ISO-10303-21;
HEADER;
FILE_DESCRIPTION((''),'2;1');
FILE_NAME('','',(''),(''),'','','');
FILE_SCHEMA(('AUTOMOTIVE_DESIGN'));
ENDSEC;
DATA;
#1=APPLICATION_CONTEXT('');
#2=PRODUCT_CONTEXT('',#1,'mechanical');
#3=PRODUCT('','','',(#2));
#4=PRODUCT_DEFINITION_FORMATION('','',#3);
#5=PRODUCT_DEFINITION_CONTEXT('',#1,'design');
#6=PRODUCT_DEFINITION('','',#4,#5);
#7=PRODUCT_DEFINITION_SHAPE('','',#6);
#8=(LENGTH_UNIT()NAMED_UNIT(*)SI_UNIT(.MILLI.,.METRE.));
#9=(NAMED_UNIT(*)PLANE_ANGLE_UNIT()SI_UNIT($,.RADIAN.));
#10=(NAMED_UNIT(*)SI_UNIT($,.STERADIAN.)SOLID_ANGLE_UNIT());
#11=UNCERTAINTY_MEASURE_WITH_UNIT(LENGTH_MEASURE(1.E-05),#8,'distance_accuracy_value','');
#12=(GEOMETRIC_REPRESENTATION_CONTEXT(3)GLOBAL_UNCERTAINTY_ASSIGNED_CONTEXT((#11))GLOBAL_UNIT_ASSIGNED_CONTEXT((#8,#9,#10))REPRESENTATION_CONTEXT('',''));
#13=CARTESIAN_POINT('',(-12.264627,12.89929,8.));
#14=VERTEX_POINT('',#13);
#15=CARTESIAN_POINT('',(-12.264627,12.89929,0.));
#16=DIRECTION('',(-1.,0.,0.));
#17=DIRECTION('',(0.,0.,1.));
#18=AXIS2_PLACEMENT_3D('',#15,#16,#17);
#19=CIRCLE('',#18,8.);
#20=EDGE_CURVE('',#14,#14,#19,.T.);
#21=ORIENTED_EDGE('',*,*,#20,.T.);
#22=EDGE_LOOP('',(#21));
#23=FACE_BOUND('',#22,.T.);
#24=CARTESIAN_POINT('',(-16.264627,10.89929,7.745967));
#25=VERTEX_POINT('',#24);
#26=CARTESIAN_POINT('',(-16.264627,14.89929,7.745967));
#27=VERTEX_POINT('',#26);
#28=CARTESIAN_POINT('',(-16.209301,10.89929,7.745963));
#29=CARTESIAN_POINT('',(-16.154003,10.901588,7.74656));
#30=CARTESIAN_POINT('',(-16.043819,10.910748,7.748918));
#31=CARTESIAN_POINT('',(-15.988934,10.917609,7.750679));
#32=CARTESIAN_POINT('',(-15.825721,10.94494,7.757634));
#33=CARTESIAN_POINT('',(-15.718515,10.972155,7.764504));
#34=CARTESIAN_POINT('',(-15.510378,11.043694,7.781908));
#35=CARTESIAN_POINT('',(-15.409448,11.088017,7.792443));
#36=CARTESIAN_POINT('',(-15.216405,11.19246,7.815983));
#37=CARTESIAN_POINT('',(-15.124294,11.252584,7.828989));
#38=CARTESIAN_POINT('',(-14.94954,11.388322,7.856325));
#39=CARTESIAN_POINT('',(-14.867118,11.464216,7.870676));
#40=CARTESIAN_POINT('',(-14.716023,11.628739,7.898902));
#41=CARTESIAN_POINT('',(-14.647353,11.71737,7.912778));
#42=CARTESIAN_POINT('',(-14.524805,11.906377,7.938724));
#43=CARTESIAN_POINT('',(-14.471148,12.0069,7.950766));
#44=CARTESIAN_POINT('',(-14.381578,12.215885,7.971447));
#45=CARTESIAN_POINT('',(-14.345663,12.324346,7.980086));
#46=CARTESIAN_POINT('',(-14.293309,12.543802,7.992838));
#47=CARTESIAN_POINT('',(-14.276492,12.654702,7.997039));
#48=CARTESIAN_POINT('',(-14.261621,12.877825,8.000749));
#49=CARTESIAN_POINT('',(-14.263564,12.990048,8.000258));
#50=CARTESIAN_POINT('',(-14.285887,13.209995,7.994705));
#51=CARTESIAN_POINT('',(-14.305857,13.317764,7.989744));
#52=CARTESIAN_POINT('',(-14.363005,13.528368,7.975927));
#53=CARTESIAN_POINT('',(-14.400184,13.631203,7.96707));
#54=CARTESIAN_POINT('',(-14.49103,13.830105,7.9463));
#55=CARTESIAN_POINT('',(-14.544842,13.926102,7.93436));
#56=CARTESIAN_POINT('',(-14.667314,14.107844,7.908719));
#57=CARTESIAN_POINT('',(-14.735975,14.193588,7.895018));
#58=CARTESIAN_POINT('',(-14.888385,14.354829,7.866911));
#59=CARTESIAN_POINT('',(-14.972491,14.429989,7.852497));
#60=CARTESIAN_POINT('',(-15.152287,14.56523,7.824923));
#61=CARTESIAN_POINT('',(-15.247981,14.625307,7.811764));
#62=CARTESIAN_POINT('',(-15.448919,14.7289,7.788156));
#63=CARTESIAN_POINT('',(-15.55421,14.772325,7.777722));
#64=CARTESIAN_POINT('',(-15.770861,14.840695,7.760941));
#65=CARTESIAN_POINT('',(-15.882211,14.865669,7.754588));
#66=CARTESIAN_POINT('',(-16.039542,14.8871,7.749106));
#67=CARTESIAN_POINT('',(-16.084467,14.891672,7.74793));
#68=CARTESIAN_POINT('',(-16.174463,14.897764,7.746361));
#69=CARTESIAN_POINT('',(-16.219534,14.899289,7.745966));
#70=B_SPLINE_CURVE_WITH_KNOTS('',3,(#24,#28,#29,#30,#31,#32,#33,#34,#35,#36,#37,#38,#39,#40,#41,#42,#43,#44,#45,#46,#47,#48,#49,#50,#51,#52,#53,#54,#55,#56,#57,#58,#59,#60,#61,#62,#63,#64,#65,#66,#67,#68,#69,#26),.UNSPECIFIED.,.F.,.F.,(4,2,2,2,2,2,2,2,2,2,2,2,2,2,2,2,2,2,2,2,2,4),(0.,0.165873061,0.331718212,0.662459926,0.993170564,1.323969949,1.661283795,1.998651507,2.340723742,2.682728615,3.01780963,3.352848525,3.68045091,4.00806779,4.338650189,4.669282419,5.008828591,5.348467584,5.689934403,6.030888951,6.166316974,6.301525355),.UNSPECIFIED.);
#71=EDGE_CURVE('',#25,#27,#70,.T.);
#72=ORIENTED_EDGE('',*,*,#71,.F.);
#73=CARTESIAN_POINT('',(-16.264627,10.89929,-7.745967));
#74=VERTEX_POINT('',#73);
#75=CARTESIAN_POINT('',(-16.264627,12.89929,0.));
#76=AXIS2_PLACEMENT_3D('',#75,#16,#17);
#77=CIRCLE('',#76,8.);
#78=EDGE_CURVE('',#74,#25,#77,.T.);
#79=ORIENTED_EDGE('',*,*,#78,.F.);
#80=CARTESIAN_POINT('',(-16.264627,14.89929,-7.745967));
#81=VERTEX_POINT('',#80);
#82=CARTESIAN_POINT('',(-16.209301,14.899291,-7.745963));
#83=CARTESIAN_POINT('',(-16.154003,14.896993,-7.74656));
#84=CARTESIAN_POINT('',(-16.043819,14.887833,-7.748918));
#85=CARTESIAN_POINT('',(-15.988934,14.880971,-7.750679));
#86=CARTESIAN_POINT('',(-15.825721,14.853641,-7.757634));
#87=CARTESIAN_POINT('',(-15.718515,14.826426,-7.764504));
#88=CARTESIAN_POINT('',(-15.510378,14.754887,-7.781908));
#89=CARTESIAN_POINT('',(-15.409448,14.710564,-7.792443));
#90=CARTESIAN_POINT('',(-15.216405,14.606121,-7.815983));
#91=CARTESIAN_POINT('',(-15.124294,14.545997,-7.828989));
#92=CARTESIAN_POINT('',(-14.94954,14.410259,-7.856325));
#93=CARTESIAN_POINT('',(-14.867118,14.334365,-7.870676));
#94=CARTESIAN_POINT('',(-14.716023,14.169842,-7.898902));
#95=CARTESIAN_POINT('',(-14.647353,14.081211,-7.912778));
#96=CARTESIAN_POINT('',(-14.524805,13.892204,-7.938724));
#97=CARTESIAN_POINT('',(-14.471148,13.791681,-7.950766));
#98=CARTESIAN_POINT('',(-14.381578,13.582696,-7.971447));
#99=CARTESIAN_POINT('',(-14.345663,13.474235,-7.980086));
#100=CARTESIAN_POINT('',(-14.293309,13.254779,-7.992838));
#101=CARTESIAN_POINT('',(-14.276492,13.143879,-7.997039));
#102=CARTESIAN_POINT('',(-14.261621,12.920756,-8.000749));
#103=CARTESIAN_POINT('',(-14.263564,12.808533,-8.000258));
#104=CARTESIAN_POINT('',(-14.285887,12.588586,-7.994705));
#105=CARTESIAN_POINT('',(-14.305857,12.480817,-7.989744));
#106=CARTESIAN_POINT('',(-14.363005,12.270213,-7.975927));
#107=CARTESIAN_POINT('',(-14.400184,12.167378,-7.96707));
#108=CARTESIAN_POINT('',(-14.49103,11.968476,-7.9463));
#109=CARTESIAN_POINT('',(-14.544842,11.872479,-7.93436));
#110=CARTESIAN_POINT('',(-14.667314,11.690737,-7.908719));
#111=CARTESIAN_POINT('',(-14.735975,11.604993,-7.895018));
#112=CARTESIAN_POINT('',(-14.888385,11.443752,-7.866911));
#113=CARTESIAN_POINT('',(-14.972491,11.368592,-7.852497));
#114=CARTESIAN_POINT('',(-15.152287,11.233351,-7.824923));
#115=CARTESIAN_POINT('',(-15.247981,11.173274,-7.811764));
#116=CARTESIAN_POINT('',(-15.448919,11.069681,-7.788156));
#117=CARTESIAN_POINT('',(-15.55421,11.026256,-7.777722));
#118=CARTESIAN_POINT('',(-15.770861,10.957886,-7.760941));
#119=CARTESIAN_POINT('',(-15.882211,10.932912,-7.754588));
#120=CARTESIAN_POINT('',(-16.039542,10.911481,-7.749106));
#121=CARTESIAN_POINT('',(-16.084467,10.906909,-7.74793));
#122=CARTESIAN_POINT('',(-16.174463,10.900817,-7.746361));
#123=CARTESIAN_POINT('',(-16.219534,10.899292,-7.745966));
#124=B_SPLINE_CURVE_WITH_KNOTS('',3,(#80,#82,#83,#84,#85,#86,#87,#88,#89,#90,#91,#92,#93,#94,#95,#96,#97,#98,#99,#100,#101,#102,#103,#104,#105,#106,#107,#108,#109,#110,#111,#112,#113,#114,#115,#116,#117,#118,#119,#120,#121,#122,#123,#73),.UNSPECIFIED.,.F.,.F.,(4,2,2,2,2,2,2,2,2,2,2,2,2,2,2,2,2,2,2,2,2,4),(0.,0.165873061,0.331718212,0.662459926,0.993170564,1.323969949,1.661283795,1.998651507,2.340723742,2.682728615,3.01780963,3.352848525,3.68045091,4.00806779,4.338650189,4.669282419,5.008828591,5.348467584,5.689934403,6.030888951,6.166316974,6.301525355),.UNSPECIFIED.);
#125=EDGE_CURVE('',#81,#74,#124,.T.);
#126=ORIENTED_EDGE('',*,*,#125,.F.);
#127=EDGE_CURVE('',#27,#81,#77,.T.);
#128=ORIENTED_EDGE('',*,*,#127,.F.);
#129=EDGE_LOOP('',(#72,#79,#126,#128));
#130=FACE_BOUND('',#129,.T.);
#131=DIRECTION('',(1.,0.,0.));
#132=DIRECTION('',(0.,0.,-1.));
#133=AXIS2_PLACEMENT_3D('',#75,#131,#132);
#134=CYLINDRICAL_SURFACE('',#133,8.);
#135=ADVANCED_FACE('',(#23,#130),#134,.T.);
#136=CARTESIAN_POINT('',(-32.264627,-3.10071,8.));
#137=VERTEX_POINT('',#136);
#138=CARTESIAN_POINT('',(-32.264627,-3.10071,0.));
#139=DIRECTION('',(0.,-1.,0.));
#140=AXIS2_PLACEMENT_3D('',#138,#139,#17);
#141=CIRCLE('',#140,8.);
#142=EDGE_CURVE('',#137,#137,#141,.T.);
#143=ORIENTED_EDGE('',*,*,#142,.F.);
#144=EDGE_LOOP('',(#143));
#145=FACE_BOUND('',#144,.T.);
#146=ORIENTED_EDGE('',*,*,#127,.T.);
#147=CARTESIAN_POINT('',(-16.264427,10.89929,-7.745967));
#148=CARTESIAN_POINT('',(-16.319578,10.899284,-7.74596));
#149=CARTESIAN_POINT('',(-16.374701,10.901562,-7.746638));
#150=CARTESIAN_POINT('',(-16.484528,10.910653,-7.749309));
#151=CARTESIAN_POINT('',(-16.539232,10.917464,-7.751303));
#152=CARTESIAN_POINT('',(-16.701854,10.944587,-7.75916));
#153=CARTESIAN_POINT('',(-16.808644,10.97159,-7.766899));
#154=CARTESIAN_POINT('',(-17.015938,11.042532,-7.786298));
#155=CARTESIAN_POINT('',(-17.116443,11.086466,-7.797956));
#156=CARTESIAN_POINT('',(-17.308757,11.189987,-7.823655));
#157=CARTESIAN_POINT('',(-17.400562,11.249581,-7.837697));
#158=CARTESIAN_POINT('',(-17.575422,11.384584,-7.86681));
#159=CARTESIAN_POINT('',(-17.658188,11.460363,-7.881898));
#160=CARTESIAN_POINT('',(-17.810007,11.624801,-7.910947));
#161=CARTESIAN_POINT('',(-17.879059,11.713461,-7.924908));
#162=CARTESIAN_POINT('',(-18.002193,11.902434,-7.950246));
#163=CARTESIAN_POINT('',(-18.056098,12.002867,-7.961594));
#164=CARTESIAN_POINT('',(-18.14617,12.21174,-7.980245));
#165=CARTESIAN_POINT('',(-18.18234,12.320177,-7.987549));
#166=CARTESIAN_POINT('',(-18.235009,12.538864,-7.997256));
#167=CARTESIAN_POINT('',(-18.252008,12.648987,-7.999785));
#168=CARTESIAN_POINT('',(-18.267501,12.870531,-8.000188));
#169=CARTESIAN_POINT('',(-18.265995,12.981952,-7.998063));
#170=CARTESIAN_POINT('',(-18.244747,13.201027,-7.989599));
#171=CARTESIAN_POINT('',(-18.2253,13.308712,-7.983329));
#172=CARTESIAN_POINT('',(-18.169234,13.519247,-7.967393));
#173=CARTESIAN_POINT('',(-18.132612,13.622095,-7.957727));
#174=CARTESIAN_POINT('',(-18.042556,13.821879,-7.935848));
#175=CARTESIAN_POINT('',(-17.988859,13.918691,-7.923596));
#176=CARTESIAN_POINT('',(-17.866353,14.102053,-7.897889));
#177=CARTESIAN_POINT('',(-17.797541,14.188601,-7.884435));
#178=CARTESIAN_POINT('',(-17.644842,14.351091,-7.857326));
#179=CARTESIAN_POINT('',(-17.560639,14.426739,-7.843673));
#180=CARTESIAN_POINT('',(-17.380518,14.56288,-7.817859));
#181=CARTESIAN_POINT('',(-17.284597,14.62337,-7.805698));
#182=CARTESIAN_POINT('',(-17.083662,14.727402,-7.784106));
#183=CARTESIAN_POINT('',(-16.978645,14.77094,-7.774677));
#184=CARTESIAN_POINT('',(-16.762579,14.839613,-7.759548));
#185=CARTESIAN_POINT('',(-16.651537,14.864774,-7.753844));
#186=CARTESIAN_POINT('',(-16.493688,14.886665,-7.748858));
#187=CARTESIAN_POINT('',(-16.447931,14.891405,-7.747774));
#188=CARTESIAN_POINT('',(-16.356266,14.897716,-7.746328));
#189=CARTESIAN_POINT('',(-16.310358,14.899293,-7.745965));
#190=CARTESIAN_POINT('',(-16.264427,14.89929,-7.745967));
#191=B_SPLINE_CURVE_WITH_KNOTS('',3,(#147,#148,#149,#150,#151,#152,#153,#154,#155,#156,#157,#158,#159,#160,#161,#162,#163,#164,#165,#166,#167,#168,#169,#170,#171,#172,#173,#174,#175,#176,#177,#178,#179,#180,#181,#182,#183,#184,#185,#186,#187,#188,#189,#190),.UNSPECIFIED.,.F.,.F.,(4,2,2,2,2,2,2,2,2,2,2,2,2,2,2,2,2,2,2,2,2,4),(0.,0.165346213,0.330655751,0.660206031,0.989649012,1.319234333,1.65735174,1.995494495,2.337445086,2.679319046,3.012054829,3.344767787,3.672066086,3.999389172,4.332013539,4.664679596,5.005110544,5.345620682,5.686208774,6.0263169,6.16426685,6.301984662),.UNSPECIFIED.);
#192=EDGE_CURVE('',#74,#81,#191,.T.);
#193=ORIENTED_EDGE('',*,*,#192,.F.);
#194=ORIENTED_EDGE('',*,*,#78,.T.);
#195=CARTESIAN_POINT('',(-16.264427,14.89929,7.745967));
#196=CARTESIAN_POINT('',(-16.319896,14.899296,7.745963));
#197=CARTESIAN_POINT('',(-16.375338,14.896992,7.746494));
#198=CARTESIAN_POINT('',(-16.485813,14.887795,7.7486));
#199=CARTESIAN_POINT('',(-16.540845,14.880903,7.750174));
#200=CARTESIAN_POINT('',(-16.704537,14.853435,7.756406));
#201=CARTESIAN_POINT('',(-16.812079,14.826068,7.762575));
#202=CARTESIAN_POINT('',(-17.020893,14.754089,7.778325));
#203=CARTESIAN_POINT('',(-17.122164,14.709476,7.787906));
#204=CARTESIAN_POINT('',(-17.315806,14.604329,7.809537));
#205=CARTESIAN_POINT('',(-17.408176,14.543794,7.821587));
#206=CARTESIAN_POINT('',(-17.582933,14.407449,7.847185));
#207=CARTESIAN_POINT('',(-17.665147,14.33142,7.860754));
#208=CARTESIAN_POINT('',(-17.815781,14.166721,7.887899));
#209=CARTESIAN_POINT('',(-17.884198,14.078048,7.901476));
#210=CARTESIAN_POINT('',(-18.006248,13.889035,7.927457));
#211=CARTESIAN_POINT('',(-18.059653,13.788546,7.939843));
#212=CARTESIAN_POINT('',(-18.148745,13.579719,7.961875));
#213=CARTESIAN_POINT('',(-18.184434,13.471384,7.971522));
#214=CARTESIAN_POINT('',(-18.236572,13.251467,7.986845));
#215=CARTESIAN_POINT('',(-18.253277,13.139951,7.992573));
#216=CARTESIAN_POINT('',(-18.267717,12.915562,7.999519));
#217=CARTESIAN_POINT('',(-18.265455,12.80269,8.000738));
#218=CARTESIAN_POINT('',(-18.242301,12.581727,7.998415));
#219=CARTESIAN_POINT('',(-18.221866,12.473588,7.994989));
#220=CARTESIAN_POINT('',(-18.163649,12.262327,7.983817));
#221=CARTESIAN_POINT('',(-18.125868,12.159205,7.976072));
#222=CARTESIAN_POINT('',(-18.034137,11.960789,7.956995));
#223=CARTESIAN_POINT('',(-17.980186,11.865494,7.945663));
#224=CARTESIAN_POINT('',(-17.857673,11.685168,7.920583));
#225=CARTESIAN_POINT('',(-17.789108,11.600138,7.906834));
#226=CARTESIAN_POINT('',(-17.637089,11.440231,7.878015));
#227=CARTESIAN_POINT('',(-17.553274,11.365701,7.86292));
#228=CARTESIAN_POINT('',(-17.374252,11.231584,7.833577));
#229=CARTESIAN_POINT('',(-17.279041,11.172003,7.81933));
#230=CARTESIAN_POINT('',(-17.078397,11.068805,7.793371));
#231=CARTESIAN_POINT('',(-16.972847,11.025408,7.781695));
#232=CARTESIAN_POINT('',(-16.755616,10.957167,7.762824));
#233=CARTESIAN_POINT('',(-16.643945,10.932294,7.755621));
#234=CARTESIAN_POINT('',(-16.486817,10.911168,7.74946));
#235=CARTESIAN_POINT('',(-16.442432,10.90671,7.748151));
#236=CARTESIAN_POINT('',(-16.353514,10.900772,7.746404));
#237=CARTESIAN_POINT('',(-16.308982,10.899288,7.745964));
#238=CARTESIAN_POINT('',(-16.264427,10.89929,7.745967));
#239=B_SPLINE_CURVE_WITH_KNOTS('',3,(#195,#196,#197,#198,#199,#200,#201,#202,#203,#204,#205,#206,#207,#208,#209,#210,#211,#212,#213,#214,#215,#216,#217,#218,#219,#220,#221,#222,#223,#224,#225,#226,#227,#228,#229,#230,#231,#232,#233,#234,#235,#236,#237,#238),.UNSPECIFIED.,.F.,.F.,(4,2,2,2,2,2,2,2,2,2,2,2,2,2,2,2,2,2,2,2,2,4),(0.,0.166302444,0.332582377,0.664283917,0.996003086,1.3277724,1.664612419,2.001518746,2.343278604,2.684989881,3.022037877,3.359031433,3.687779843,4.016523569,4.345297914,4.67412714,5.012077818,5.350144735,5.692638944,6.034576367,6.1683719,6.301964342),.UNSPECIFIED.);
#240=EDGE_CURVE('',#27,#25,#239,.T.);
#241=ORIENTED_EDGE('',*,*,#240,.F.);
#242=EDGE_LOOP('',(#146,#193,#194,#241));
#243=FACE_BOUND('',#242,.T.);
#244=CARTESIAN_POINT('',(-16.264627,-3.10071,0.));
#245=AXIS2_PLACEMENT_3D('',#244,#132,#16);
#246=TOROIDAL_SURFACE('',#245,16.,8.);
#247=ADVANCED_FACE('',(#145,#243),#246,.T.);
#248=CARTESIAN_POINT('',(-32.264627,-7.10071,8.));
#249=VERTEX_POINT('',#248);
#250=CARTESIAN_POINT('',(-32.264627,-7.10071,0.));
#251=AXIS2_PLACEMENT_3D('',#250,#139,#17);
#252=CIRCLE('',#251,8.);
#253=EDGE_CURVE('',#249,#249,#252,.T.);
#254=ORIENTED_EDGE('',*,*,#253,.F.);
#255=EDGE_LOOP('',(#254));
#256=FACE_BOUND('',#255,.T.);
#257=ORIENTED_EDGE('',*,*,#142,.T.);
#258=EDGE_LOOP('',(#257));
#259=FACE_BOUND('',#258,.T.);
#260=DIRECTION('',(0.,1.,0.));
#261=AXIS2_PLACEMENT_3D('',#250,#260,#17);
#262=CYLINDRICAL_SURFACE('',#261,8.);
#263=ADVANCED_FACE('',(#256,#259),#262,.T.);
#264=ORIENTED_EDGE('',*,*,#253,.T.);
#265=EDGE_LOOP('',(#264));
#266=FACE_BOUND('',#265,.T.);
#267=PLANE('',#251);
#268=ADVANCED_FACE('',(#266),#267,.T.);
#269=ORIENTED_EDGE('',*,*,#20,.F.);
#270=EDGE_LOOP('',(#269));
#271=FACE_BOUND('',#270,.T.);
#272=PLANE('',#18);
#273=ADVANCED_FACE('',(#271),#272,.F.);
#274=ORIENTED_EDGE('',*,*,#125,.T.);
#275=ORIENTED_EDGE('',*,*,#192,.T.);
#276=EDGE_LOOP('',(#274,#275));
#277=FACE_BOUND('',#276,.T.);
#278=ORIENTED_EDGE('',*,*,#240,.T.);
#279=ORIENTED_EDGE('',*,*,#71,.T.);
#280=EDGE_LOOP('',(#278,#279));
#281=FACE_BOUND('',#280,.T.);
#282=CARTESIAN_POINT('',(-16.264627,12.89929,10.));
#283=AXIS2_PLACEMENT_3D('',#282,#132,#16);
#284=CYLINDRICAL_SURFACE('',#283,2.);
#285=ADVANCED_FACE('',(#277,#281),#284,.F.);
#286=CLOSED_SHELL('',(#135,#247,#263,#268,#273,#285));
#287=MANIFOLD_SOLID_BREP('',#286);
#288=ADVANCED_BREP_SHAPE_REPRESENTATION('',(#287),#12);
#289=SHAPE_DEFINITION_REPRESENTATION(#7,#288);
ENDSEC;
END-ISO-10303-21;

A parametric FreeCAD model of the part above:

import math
import FreeCAD as App
import Part
import Sketcher

V = App.Vector

doc = App.newDocument("Part")
body = doc.addObject("PartDesign::Body", "Body")

# Sketch on XZ plane
sketch1 = doc.addObject("Sketcher::SketchObject", "Sketch")
body.addObject(sketch1)
sketch1.AttachmentSupport = (doc.XZ_Plane, [""])
sketch1.MapMode = "FlatFace"
sketch1.AttachmentOffset = App.Placement(V(0, 0, 7.10071), App.Rotation())
sketch1.addGeometry(Part.Circle(V(-32, 0, 0), V(0, 0, 1), 8), False)
sketch1.addConstraint([
    Sketcher.Constraint("PointOnObject", 0, 3, -1),
    Sketcher.Constraint("Diameter", 0, 16.0),
    Sketcher.Constraint("DistanceX", 0, 3, -1, 1, 32.264627),
])

# Sketch on XY plane
sketch2 = doc.addObject("Sketcher::SketchObject", "Sketch001")
body.addObject(sketch2)
sketch2.AttachmentSupport = (doc.XY_Plane, [""])
sketch2.MapMode = "FlatFace"
sketch2.addGeometry([
    Part.LineSegment(V(-32.3, -7.1, 0), V(-32.3, -3.1, 0)),
    Part.ArcOfCircle(Part.Circle(V(-16.3, -3.1, 0), V(0, 0, 1), 16), math.radians(90), math.radians(180)),
    Part.LineSegment(V(-16.3, 12.9, 0), V(-12.3, 12.9, 0)),
], False)
sketch2.addConstraint([
    Sketcher.Constraint("Tangent", 0, 2, 1, 2),
    Sketcher.Constraint("Tangent", 1, 1, 2, 1),
    Sketcher.Constraint("Vertical", 0),
    Sketcher.Constraint("Horizontal", 2),
    Sketcher.Constraint("Equal", 2, 0),
    Sketcher.Constraint("Radius", 1, 16.0),
    Sketcher.Constraint("DistanceX", 2, 1, 2, 2, 4.0),
    Sketcher.Constraint("DistanceY", 1, 3, -1, 1, 3.10071),
    Sketcher.Constraint("DistanceX", 1, 3, -1, 1, 16.264627),
])
doc.recompute()

additivepipe = doc.addObject("PartDesign::AdditivePipe", "AdditivePipe")
body.addObject(additivepipe)
additivepipe.Profile = sketch1
additivepipe.Spine = (sketch2, ["Edge1", "Edge2", "Edge3"])

# Sketch on XY plane
sketch3 = doc.addObject("Sketcher::SketchObject", "Sketch002")
body.addObject(sketch3)
sketch3.AttachmentSupport = (doc.XY_Plane, [""])
sketch3.MapMode = "FlatFace"
sketch3.addGeometry(Part.Circle(V(-16.3, 12.9, 0), V(0, 0, 1), 2), False)
sketch3.addConstraint([
    Sketcher.Constraint("Diameter", 0, 4.0),
    Sketcher.Constraint("DistanceY", -1, 1, 0, 3, 12.89929),
    Sketcher.Constraint("DistanceX", 0, 3, -1, 1, 16.264627),
])
pocket1 = doc.addObject("PartDesign::Pocket", "Pocket")
body.addObject(pocket1)
pocket1.Profile = sketch3
pocket1.Type = "ThroughAll"
pocket1.Midplane = True

doc.recompute()
